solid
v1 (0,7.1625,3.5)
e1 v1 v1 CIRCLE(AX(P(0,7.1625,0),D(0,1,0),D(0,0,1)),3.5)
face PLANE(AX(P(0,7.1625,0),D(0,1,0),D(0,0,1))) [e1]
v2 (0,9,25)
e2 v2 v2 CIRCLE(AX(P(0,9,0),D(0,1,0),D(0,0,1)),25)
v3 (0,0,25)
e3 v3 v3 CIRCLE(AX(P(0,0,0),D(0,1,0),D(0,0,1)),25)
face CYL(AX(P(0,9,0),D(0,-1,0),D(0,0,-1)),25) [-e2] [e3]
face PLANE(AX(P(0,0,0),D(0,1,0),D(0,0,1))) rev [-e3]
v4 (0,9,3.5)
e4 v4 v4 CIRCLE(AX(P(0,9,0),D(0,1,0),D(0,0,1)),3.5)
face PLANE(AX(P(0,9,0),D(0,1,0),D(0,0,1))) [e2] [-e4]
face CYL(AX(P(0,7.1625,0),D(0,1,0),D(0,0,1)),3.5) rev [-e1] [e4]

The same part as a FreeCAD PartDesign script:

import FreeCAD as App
import Part
import Sketcher
Q = App.Units.Quantity

doc = App.newDocument("Part")
params = doc.addObject("Spreadsheet::Sheet", "Params")
for row, (alias, value) in enumerate([
    ("sketch1_diameter", "50 mm"),
    ("pad1_length", "9 mm"),
    ("sketch2_diameter", "7 mm"),
    ("pocket1_length", "1.8375 mm"),
], start=1):
    params.set(f"A{row}", alias)
    params.set(f"B{row}", "=" + value)
    params.setAlias(f"B{row}", alias)

body = doc.addObject("PartDesign::Body", "Body")

sketch1 = body.newObject("Sketcher::SketchObject", "Sketch")
sketch1.AttachmentSupport = (doc.getObject("XZ_Plane"), [""])
sketch1.MapMode = "FlatFace"
sketch1.addGeometry(Part.Circle(App.Vector(0, 0, 0), App.Vector(0, 0, 1), 25), False)
sketch1.addConstraint([
    Sketcher.Constraint("Coincident", 0, 3, -1, 1),
    Sketcher.Constraint("Diameter", 0, Q("50 mm")),
])
sketch1.setExpression("Constraints[1]", "Params.sketch1_diameter")
pad1 = body.newObject("PartDesign::Pad", "Pad")
pad1.Profile = sketch1
pad1.setExpression("Length", "Params.pad1_length")
pad1.Reversed = True

sketch2 = body.newObject("Sketcher::SketchObject", "Sketch001")
sketch2.AttachmentSupport = (doc.getObject("XZ_Plane"), [""])
sketch2.MapMode = "FlatFace"
sketch2.AttachmentOffset = App.Placement(App.Vector(0, 0, -9), App.Rotation())
sketch2.addGeometry(Part.Circle(App.Vector(0, 0, 0), App.Vector(0, 0, 1), 3.5), False)
sketch2.addConstraint([
    Sketcher.Constraint("Coincident", 0, 3, -1, 1),
    Sketcher.Constraint("Diameter", 0, Q("7 mm")),
])
sketch2.setExpression("Constraints[1]", "Params.sketch2_diameter")
pocket1 = body.newObject("PartDesign::Pocket", "Pocket")
pocket1.Profile = sketch2
pocket1.setExpression("Length", "Params.pocket1_length")
pocket1.Reversed = True

doc.recompute()
